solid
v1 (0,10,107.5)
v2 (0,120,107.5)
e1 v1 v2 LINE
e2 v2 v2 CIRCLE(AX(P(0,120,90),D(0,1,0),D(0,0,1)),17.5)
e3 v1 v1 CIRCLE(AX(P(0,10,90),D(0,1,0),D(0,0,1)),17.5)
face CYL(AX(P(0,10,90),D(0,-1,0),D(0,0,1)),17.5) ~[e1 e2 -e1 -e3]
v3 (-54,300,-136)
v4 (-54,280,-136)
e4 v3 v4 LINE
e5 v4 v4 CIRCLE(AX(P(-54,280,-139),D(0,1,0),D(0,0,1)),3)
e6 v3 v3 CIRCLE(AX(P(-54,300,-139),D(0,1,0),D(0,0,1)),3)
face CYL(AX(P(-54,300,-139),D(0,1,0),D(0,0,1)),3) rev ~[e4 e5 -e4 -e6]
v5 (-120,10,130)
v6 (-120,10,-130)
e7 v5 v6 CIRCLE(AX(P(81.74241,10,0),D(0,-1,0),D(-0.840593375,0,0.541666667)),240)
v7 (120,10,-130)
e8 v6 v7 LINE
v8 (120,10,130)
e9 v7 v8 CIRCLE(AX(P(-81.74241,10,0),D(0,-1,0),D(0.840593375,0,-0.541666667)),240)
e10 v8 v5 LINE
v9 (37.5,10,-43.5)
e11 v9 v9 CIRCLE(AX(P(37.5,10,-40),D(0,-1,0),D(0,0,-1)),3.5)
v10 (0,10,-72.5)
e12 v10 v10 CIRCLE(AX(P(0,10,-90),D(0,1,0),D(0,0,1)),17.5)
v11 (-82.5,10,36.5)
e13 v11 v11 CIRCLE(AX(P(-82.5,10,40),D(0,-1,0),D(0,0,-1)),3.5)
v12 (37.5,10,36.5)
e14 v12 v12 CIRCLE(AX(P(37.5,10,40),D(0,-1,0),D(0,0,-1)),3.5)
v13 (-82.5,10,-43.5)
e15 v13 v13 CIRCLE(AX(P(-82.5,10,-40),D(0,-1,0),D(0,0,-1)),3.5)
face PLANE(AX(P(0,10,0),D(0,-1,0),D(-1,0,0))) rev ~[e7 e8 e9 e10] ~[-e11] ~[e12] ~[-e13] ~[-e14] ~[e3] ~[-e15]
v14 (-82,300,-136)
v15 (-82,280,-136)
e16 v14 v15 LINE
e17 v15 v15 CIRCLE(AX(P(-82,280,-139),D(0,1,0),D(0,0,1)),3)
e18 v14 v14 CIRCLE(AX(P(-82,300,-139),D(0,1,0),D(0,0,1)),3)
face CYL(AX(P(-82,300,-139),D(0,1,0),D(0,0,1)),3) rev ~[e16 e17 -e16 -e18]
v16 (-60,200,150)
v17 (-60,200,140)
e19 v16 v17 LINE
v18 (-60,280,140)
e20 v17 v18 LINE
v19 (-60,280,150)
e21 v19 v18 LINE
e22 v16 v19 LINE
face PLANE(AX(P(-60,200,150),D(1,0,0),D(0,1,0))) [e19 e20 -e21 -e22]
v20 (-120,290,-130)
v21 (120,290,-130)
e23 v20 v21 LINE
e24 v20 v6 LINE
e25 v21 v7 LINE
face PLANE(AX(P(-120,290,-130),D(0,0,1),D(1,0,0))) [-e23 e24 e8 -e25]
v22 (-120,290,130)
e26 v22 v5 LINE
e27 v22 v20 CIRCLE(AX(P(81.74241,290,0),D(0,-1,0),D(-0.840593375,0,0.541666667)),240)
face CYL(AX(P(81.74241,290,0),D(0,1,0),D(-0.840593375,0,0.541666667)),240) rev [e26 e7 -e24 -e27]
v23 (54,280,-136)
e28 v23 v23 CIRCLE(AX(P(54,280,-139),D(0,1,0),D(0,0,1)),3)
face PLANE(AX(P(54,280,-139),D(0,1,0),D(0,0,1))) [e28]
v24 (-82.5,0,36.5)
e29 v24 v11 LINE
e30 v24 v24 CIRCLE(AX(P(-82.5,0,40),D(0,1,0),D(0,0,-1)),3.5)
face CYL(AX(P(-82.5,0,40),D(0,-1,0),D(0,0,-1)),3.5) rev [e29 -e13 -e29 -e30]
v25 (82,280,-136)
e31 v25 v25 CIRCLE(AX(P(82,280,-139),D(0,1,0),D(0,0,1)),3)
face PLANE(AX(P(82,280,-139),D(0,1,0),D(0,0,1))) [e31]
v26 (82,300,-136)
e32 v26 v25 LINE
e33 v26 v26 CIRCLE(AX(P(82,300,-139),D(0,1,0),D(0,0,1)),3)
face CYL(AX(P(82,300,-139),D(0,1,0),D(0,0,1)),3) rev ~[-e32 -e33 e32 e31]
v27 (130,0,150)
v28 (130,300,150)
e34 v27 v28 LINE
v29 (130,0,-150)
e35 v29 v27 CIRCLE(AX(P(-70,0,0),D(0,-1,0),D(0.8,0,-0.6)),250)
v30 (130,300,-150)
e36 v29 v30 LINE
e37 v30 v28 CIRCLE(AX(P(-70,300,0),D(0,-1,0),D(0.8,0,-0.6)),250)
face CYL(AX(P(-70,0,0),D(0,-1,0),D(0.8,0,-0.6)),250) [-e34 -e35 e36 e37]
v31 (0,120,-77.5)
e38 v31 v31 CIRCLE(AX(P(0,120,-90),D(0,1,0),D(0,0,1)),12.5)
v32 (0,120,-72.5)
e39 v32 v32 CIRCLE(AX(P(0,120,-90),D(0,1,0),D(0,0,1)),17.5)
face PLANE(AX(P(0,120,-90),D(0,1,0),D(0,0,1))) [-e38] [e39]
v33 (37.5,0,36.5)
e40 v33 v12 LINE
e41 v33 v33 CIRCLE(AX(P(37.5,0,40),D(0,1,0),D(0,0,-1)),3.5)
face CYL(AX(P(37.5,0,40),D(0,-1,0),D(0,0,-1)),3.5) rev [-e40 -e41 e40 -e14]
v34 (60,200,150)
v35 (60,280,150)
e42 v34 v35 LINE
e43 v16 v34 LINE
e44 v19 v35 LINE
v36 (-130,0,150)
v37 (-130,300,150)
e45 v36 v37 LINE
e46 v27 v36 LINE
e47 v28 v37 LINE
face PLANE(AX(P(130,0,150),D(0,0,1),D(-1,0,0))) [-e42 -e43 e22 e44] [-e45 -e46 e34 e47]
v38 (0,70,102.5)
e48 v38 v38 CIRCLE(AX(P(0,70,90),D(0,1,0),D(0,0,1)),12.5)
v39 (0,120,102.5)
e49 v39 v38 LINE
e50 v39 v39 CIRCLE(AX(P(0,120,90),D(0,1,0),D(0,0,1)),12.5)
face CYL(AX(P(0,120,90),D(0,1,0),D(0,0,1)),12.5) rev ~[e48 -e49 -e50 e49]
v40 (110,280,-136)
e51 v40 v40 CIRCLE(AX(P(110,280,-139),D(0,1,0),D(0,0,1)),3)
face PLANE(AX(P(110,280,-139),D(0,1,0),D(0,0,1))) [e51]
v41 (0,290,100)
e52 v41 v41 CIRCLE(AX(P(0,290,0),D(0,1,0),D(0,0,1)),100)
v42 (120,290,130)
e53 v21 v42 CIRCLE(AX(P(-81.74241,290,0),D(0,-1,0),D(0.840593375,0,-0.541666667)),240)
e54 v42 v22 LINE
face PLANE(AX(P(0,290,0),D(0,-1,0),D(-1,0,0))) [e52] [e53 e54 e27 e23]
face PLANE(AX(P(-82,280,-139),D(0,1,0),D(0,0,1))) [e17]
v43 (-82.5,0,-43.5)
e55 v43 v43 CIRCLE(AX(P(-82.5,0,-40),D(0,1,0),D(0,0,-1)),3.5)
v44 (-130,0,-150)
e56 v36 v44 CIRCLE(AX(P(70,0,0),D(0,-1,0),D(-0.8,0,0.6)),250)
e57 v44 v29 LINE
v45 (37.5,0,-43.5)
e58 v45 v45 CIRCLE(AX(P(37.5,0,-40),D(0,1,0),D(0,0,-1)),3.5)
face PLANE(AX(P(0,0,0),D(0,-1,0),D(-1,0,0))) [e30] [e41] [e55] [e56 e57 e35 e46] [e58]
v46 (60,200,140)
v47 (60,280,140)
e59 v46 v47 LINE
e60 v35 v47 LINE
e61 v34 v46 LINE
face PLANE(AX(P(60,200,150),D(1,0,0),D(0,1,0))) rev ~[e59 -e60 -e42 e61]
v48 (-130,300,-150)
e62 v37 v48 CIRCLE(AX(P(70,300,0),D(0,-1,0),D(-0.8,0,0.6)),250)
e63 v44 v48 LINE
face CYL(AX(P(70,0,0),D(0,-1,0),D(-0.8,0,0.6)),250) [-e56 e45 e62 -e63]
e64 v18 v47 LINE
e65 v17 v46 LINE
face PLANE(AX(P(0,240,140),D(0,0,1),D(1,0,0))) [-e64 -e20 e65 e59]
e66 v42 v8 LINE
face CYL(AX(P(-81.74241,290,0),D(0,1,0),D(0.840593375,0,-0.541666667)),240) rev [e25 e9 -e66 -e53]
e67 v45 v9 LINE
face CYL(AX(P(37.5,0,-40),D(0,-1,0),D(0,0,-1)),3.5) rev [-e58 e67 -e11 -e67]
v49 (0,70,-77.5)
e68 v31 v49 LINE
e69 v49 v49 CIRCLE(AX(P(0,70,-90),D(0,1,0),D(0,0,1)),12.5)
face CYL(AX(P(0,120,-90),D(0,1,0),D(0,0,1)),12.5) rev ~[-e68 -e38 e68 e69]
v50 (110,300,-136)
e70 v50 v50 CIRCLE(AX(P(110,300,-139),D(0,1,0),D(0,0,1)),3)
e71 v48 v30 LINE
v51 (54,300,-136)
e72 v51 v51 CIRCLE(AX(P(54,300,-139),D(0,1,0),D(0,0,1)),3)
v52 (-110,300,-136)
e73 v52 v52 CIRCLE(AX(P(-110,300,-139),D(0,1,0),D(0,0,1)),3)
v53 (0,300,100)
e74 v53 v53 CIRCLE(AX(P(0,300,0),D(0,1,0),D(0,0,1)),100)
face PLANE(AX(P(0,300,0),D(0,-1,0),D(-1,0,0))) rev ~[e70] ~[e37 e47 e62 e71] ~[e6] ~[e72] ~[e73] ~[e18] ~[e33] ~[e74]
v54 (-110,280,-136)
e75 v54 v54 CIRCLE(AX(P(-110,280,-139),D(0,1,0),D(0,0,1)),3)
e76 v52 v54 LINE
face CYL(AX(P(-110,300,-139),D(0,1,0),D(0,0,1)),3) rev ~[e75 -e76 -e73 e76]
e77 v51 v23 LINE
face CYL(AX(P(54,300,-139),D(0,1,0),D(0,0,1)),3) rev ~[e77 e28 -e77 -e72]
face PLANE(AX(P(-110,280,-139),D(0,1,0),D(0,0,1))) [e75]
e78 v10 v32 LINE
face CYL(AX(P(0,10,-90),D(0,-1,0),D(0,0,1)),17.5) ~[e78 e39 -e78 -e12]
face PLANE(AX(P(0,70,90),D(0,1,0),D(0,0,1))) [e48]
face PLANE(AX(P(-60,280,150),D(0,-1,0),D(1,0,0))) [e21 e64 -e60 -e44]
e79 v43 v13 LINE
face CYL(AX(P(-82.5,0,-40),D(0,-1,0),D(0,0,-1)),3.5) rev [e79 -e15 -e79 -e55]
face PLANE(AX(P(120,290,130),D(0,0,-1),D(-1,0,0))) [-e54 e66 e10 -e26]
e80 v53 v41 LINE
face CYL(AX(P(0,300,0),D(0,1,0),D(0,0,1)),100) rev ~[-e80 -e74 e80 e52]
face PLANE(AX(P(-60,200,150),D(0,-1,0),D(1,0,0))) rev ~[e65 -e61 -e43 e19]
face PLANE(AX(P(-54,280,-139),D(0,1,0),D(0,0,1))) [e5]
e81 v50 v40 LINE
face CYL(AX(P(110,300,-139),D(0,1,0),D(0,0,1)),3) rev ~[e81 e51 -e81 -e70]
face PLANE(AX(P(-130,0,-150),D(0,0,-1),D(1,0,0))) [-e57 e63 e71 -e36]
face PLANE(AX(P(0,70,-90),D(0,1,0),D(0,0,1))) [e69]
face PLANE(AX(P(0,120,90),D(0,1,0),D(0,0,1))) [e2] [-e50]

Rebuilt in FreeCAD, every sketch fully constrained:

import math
import FreeCAD as App
import Part
import Sketcher


def add_polygon(sketch, points):
    """Adds a closed chain of lines whose ends are joined by coincident constraints."""
    first, n = sketch.GeometryCount, len(points)
    for a, b in zip(points, points[1:] + points[:1]):
        sketch.addGeometry(Part.LineSegment(App.Vector(*a, 0), App.Vector(*b, 0)), False)
    for i in range(n):
        sketch.addConstraint(Sketcher.Constraint("Coincident", first + i, 2, first + (i + 1) % n, 1))

doc = App.newDocument("Part")
params = doc.addObject("Spreadsheet::Sheet", "Params")
for row, (alias, value) in enumerate([
    ("sketch1_radius", "250 mm"),
    ("sketch1_width", "260 mm"),
    ("pad1_length", "300 mm"),
    ("sketch2_radius", "240 mm"),
    ("sketch2_width", "240 mm"),
    ("pocket1_length", "280 mm"),
    ("sketch3_diameter", "200 mm"),
    ("pocket2_length", "240 mm"),
    ("sketch4_width", "120 mm"),
    ("sketch4_height", "80 mm"),
    ("pocket3_length", "10 mm"),
    ("sketch5_diameter", "6 mm"),
    ("pocket4_length", "20 mm"),
    ("sketch6_diameter", "35 mm"),
    ("pad2_length", "110 mm"),
    ("sketch7_diameter", "25 mm"),
    ("pocket5_length", "50 mm"),
    ("sketch8_diameter", "7 mm"),
    ("sketch9_diameter", "7 mm"),
    ("sketch10_diameter", "7 mm"),
    ("sketch11_diameter", "7 mm"),
], start=1):
    params.set(f"A{row}", alias)
    params.set(f"B{row}", "=" + value)
    params.setAlias(f"B{row}", alias)

body = doc.addObject("PartDesign::Body", "Body")

# Sketch on XZ plane
sketch1 = body.newObject("Sketcher::SketchObject", "Sketch")
sketch1.AttachmentSupport = (doc.getObject("XZ_Plane"), [""])
sketch1.MapMode = "FlatFace"
sketch1.addGeometry(Part.LineSegment(App.Vector(130, -150, 0), App.Vector(-130, -150, 0)), False)
sketch1.addGeometry(Part.ArcOfCircle(Part.Circle(App.Vector(70, 0, 0), App.Vector(0, 0, 1), 250), math.radians(143), math.radians(217)), False)
sketch1.addGeometry(Part.LineSegment(App.Vector(-130, 150, 0), App.Vector(130, 150, 0)), False)
sketch1.addGeometry(Part.ArcOfCircle(Part.Circle(App.Vector(-70, 0, 0), App.Vector(0, 0, 1), 250), math.radians(-37), math.radians(37)), False)
sketch1.addConstraint(Sketcher.Constraint("Coincident", 0, 2, 1, 2))
sketch1.addConstraint(Sketcher.Constraint("Coincident", 1, 1, 2, 1))
sketch1.addConstraint(Sketcher.Constraint("Coincident", 2, 2, 3, 2))
sketch1.addConstraint(Sketcher.Constraint("Coincident", 3, 1, 0, 1))
sketch1.addConstraint(Sketcher.Constraint("Horizontal", 0))
sketch1.addConstraint(Sketcher.Constraint("Horizontal", 2))
sketch1.addConstraint(Sketcher.Constraint("Equal", 1, 3))
sketch1.addConstraint(Sketcher.Constraint("Symmetric", 1, 3, 3, 3, -1, 1))
sketch1.addConstraint(Sketcher.Constraint("Symmetric", 0, 2, 1, 1, -1))
sketch1.addConstraint(Sketcher.Constraint("Radius", 1, 250.0))
sketch1.addConstraint(Sketcher.Constraint("DistanceX", 0, 2, 0, 1, 260.0))
sketch1.addConstraint(Sketcher.Constraint("DistanceX", -1, 1, 1, 3, 70.0))
sketch1.setExpression("Constraints[9]", "Params.sketch1_radius")
sketch1.setExpression("Constraints[10]", "Params.sketch1_width")
pad1 = body.newObject("PartDesign::Pad", "Pad")
pad1.Profile = sketch1
pad1.setExpression("Length", "Params.pad1_length")
pad1.Reversed = True

# Sketch on XZ plane
sketch2 = body.newObject("Sketcher::SketchObject", "Sketch001")
sketch2.AttachmentSupport = (doc.getObject("XZ_Plane"), [""])
sketch2.MapMode = "FlatFace"
sketch2.AttachmentOffset = App.Placement(App.Vector(0, 0, -290), App.Rotation())
sketch2.addGeometry(Part.LineSegment(App.Vector(120, -130, 0), App.Vector(-120, -130, 0)), False)
sketch2.addGeometry(Part.ArcOfCircle(Part.Circle(App.Vector(82, 0, 0), App.Vector(0, 0, 1), 240), math.radians(147), math.radians(213)), False)
sketch2.addGeometry(Part.LineSegment(App.Vector(-120, 130, 0), App.Vector(120, 130, 0)), False)
sketch2.addGeometry(Part.ArcOfCircle(Part.Circle(App.Vector(-82, 0, 0), App.Vector(0, 0, 1), 240), math.radians(-33), math.radians(33)), False)
sketch2.addConstraint(Sketcher.Constraint("Coincident", 0, 2, 1, 2))
sketch2.addConstraint(Sketcher.Constraint("Coincident", 1, 1, 2, 1))
sketch2.addConstraint(Sketcher.Constraint("Coincident", 2, 2, 3, 2))
sketch2.addConstraint(Sketcher.Constraint("Coincident", 3, 1, 0, 1))
sketch2.addConstraint(Sketcher.Constraint("Horizontal", 0))
sketch2.addConstraint(Sketcher.Constraint("Horizontal", 2))
sketch2.addConstraint(Sketcher.Constraint("Equal", 1, 3))
sketch2.addConstraint(Sketcher.Constraint("Symmetric", 1, 3, 3, 3, -1, 1))
sketch2.addConstraint(Sketcher.Constraint("Symmetric", 0, 2, 1, 1, -1))
sketch2.addConstraint(Sketcher.Constraint("Radius", 1, 240.0))
sketch2.addConstraint(Sketcher.Constraint("DistanceX", 0, 2, 0, 1, 240.0))
sketch2.addConstraint(Sketcher.Constraint("DistanceY", 0, 2, -1, 1, 130.0))
sketch2.setExpression("Constraints[9]", "Params.sketch2_radius")
sketch2.setExpression("Constraints[10]", "Params.sketch2_width")
pocket1 = body.newObject("PartDesign::Pocket", "Pocket")
pocket1.Profile = sketch2
pocket1.setExpression("Length", "Params.pocket1_length")
pocket1.Reversed = True

# Sketch on XZ plane
sketch3 = body.newObject("Sketcher::SketchObject", "Sketch002")
sketch3.AttachmentSupport = (doc.getObject("XZ_Plane"), [""])
sketch3.MapMode = "FlatFace"
sketch3.AttachmentOffset = App.Placement(App.Vector(0, 0, -300), App.Rotation())
sketch3.addGeometry(Part.Circle(App.Vector(0, 0, 0), App.Vector(0, 0, 1), 100), False)
sketch3.addConstraint(Sketcher.Constraint("Coincident", 0, 3, -1, 1))
sketch3.addConstraint(Sketcher.Constraint("Diameter", 0, 200.0))
sketch3.setExpression("Constraints[1]", "Params.sketch3_diameter")
pocket2 = body.newObject("PartDesign::Pocket", "Pocket001")
pocket2.Profile = sketch3
pocket2.setExpression("Length", "Params.pocket2_length")
pocket2.Reversed = True

# Sketch on XY plane
sketch4 = body.newObject("Sketcher::SketchObject", "Sketch003")
sketch4.AttachmentSupport = (doc.getObject("XY_Plane"), [""])
sketch4.MapMode = "FlatFace"
sketch4.AttachmentOffset = App.Placement(App.Vector(0, 0, 150), App.Rotation())
add_polygon(sketch4, [(-60, 280), (-60, 200), (60, 200), (60, 280)])  # lines 0-3
sketch4.addConstraint(Sketcher.Constraint("Vertical", 0))
sketch4.addConstraint(Sketcher.Constraint("Horizontal", 1))
sketch4.addConstraint(Sketcher.Constraint("Vertical", 2))
sketch4.addConstraint(Sketcher.Constraint("Horizontal", 3))
sketch4.addConstraint(Sketcher.Constraint("DistanceX", 1, 1, 1, 2, 120.0))
sketch4.addConstraint(Sketcher.Constraint("DistanceY", 0, 2, 0, 1, 80.0))
sketch4.addConstraint(Sketcher.Constraint("DistanceX", 0, 2, -1, 1, 60.0))
sketch4.addConstraint(Sketcher.Constraint("DistanceY", -1, 1, 0, 2, 200.0))
sketch4.setExpression("Constraints[8]", "Params.sketch4_width")
sketch4.setExpression("Constraints[9]", "Params.sketch4_height")
pocket3 = body.newObject("PartDesign::Pocket", "Pocket002")
pocket3.Profile = sketch4
pocket3.setExpression("Length", "Params.pocket3_length")

# Sketch on XZ plane
sketch5 = body.newObject("Sketcher::SketchObject", "Sketch004")
sketch5.AttachmentSupport = (doc.getObject("XZ_Plane"), [""])
sketch5.MapMode = "FlatFace"
sketch5.AttachmentOffset = App.Placement(App.Vector(0, 0, -300), App.Rotation())
sketch5.addGeometry(Part.Circle(App.Vector(-110, -139, 0), App.Vector(0, 0, 1), 3), False)
sketch5.addGeometry(Part.Circle(App.Vector(-82, -139, 0), App.Vector(0, 0, 1), 3), False)
sketch5.addGeometry(Part.Circle(App.Vector(-54, -139, 0), App.Vector(0, 0, 1), 3), False)
sketch5.addGeometry(Part.Circle(App.Vector(54, -139, 0), App.Vector(0, 0, 1), 3), False)
sketch5.addGeometry(Part.Circle(App.Vector(82, -139, 0), App.Vector(0, 0, 1), 3), False)
sketch5.addGeometry(Part.Circle(App.Vector(110, -139, 0), App.Vector(0, 0, 1), 3), False)
sketch5.addConstraint(Sketcher.Constraint("Equal", 0, 1))
sketch5.addConstraint(Sketcher.Constraint("Equal", 1, 2))
sketch5.addConstraint(Sketcher.Constraint("Equal", 2, 3))
sketch5.addConstraint(Sketcher.Constraint("Equal", 3, 4))
sketch5.addConstraint(Sketcher.Constraint("Equal", 4, 5))
sketch5.addConstraint(Sketcher.Constraint("Symmetric", 2, 3, 3, 3, -2))
sketch5.addConstraint(Sketcher.Constraint("Symmetric", 1, 3, 4, 3, -2))
sketch5.addConstraint(Sketcher.Constraint("Symmetric", 0, 3, 5, 3, -2))
sketch5.addConstraint(Sketcher.Constraint("Horizontal", 0, 3, 1, 3))
sketch5.addConstraint(Sketcher.Constraint("Horizontal", 1, 3, 2, 3))
sketch5.addConstraint(Sketcher.Constraint("Diameter", 0, 6.0))
sketch5.addConstraint(Sketcher.Constraint("DistanceX", 0, 3, -1, 1, 110.0))
sketch5.addConstraint(Sketcher.Constraint("DistanceY", 0, 3, -1, 1, 139.0))
sketch5.addConstraint(Sketcher.Constraint("DistanceX", 1, 3, -1, 1, 82.0))
sketch5.addConstraint(Sketcher.Constraint("DistanceX", 2, 3, -1, 1, 54.0))
sketch5.setExpression("Constraints[10]", "Params.sketch5_diameter")
pocket4 = body.newObject("PartDesign::Pocket", "Pocket003")
pocket4.Profile = sketch5
pocket4.setExpression("Length", "Params.pocket4_length")
pocket4.Reversed = True

# Sketch on XZ plane
sketch6 = body.newObject("Sketcher::SketchObject", "Sketch005")
sketch6.AttachmentSupport = (doc.getObject("XZ_Plane"), [""])
sketch6.MapMode = "FlatFace"
sketch6.AttachmentOffset = App.Placement(App.Vector(0, 0, -10), App.Rotation())
sketch6.addGeometry(Part.Circle(App.Vector(0, -90, 0), App.Vector(0, 0, 1), 18), False)
sketch6.addGeometry(Part.Circle(App.Vector(0, 90, 0), App.Vector(0, 0, 1), 18), False)
sketch6.addConstraint(Sketcher.Constraint("Equal", 0, 1))
sketch6.addConstraint(Sketcher.Constraint("Symmetric", 0, 3, 1, 3, -1, 1))
sketch6.addConstraint(Sketcher.Constraint("PointOnObject", 0, 3, -2))
sketch6.addConstraint(Sketcher.Constraint("Diameter", 0, 35.0))
sketch6.addConstraint(Sketcher.Constraint("DistanceY", 0, 3, -1, 1, 90.0))
sketch6.setExpression("Constraints[3]", "Params.sketch6_diameter")
pad2 = body.newObject("PartDesign::Pad", "Pad001")
pad2.Profile = sketch6
pad2.setExpression("Length", "Params.pad2_length")
pad2.Reversed = True

# Sketch on XZ plane
sketch7 = body.newObject("Sketcher::SketchObject", "Sketch006")
sketch7.AttachmentSupport = (doc.getObject("XZ_Plane"), [""])
sketch7.MapMode = "FlatFace"
sketch7.AttachmentOffset = App.Placement(App.Vector(0, 0, -120), App.Rotation())
sketch7.addGeometry(Part.Circle(App.Vector(0, 90, 0), App.Vector(0, 0, 1), 12), False)
sketch7.addGeometry(Part.Circle(App.Vector(0, -90, 0), App.Vector(0, 0, 1), 12), False)
sketch7.addConstraint(Sketcher.Constraint("Equal", 0, 1))
sketch7.addConstraint(Sketcher.Constraint("Symmetric", 0, 3, 1, 3, -1, 1))
sketch7.addConstraint(Sketcher.Constraint("PointOnObject", 0, 3, -2))
sketch7.addConstraint(Sketcher.Constraint("Diameter", 0, 25.0))
sketch7.addConstraint(Sketcher.Constraint("DistanceY", -1, 1, 0, 3, 90.0))
sketch7.setExpression("Constraints[3]", "Params.sketch7_diameter")
pocket5 = body.newObject("PartDesign::Pocket", "Pocket004")
pocket5.Profile = sketch7
pocket5.setExpression("Length", "Params.pocket5_length")
pocket5.Reversed = True

# Sketch on XZ plane
sketch8 = body.newObject("Sketcher::SketchObject", "Sketch007")
sketch8.AttachmentSupport = (doc.getObject("XZ_Plane"), [""])
sketch8.MapMode = "FlatFace"
sketch8.addGeometry(Part.Circle(App.Vector(-82.5, -40, 0), App.Vector(0, 0, 1), 3.5), False)
sketch8.addConstraint(Sketcher.Constraint("Diameter", 0, 7.0))
sketch8.addConstraint(Sketcher.Constraint("DistanceY", 0, 3, -1, 1, 40.0))
sketch8.addConstraint(Sketcher.Constraint("DistanceX", 0, 3, -1, 1, 82.5))
sketch8.setExpression("Constraints[0]", "Params.sketch8_diameter")
pocket6 = body.newObject("PartDesign::Pocket", "Pocket005")
pocket6.Profile = sketch8
pocket6.Type = "UpToFirst"

# Sketch on XZ plane
sketch9 = body.newObject("Sketcher::SketchObject", "Sketch008")
sketch9.AttachmentSupport = (doc.getObject("XZ_Plane"), [""])
sketch9.MapMode = "FlatFace"
sketch9.addGeometry(Part.Circle(App.Vector(37.5, -40, 0), App.Vector(0, 0, 1), 3.5), False)
sketch9.addConstraint(Sketcher.Constraint("Diameter", 0, 7.0))
sketch9.addConstraint(Sketcher.Constraint("DistanceY", 0, 3, -1, 1, 40.0))
sketch9.addConstraint(Sketcher.Constraint("DistanceX", -1, 1, 0, 3, 37.5))
sketch9.setExpression("Constraints[0]", "Params.sketch9_diameter")
pocket7 = body.newObject("PartDesign::Pocket", "Pocket006")
pocket7.Profile = sketch9
pocket7.Type = "UpToFirst"

# Sketch on XZ plane
sketch10 = body.newObject("Sketcher::SketchObject", "Sketch009")
sketch10.AttachmentSupport = (doc.getObject("XZ_Plane"), [""])
sketch10.MapMode = "FlatFace"
sketch10.addGeometry(Part.Circle(App.Vector(37.5, 40, 0), App.Vector(0, 0, 1), 3.5), False)
sketch10.addConstraint(Sketcher.Constraint("Diameter", 0, 7.0))
sketch10.addConstraint(Sketcher.Constraint("DistanceY", -1, 1, 0, 3, 40.0))
sketch10.addConstraint(Sketcher.Constraint("DistanceX", -1, 1, 0, 3, 37.5))
sketch10.setExpression("Constraints[0]", "Params.sketch10_diameter")
pocket8 = body.newObject("PartDesign::Pocket", "Pocket007")
pocket8.Profile = sketch10
pocket8.Type = "UpToFirst"

# Sketch on XZ plane
sketch11 = body.newObject("Sketcher::SketchObject", "Sketch010")
sketch11.AttachmentSupport = (doc.getObject("XZ_Plane"), [""])
sketch11.MapMode = "FlatFace"
sketch11.addGeometry(Part.Circle(App.Vector(-82.5, 40, 0), App.Vector(0, 0, 1), 3.5), False)
sketch11.addConstraint(Sketcher.Constraint("Diameter", 0, 7.0))
sketch11.addConstraint(Sketcher.Constraint("DistanceY", -1, 1, 0, 3, 40.0))
sketch11.addConstraint(Sketcher.Constraint("DistanceX", 0, 3, -1, 1, 82.5))
sketch11.setExpression("Constraints[0]", "Params.sketch11_diameter")
pocket9 = body.newObject("PartDesign::Pocket", "Pocket008")
pocket9.Profile = sketch11
pocket9.Type = "UpToFirst"

doc.recompute()
